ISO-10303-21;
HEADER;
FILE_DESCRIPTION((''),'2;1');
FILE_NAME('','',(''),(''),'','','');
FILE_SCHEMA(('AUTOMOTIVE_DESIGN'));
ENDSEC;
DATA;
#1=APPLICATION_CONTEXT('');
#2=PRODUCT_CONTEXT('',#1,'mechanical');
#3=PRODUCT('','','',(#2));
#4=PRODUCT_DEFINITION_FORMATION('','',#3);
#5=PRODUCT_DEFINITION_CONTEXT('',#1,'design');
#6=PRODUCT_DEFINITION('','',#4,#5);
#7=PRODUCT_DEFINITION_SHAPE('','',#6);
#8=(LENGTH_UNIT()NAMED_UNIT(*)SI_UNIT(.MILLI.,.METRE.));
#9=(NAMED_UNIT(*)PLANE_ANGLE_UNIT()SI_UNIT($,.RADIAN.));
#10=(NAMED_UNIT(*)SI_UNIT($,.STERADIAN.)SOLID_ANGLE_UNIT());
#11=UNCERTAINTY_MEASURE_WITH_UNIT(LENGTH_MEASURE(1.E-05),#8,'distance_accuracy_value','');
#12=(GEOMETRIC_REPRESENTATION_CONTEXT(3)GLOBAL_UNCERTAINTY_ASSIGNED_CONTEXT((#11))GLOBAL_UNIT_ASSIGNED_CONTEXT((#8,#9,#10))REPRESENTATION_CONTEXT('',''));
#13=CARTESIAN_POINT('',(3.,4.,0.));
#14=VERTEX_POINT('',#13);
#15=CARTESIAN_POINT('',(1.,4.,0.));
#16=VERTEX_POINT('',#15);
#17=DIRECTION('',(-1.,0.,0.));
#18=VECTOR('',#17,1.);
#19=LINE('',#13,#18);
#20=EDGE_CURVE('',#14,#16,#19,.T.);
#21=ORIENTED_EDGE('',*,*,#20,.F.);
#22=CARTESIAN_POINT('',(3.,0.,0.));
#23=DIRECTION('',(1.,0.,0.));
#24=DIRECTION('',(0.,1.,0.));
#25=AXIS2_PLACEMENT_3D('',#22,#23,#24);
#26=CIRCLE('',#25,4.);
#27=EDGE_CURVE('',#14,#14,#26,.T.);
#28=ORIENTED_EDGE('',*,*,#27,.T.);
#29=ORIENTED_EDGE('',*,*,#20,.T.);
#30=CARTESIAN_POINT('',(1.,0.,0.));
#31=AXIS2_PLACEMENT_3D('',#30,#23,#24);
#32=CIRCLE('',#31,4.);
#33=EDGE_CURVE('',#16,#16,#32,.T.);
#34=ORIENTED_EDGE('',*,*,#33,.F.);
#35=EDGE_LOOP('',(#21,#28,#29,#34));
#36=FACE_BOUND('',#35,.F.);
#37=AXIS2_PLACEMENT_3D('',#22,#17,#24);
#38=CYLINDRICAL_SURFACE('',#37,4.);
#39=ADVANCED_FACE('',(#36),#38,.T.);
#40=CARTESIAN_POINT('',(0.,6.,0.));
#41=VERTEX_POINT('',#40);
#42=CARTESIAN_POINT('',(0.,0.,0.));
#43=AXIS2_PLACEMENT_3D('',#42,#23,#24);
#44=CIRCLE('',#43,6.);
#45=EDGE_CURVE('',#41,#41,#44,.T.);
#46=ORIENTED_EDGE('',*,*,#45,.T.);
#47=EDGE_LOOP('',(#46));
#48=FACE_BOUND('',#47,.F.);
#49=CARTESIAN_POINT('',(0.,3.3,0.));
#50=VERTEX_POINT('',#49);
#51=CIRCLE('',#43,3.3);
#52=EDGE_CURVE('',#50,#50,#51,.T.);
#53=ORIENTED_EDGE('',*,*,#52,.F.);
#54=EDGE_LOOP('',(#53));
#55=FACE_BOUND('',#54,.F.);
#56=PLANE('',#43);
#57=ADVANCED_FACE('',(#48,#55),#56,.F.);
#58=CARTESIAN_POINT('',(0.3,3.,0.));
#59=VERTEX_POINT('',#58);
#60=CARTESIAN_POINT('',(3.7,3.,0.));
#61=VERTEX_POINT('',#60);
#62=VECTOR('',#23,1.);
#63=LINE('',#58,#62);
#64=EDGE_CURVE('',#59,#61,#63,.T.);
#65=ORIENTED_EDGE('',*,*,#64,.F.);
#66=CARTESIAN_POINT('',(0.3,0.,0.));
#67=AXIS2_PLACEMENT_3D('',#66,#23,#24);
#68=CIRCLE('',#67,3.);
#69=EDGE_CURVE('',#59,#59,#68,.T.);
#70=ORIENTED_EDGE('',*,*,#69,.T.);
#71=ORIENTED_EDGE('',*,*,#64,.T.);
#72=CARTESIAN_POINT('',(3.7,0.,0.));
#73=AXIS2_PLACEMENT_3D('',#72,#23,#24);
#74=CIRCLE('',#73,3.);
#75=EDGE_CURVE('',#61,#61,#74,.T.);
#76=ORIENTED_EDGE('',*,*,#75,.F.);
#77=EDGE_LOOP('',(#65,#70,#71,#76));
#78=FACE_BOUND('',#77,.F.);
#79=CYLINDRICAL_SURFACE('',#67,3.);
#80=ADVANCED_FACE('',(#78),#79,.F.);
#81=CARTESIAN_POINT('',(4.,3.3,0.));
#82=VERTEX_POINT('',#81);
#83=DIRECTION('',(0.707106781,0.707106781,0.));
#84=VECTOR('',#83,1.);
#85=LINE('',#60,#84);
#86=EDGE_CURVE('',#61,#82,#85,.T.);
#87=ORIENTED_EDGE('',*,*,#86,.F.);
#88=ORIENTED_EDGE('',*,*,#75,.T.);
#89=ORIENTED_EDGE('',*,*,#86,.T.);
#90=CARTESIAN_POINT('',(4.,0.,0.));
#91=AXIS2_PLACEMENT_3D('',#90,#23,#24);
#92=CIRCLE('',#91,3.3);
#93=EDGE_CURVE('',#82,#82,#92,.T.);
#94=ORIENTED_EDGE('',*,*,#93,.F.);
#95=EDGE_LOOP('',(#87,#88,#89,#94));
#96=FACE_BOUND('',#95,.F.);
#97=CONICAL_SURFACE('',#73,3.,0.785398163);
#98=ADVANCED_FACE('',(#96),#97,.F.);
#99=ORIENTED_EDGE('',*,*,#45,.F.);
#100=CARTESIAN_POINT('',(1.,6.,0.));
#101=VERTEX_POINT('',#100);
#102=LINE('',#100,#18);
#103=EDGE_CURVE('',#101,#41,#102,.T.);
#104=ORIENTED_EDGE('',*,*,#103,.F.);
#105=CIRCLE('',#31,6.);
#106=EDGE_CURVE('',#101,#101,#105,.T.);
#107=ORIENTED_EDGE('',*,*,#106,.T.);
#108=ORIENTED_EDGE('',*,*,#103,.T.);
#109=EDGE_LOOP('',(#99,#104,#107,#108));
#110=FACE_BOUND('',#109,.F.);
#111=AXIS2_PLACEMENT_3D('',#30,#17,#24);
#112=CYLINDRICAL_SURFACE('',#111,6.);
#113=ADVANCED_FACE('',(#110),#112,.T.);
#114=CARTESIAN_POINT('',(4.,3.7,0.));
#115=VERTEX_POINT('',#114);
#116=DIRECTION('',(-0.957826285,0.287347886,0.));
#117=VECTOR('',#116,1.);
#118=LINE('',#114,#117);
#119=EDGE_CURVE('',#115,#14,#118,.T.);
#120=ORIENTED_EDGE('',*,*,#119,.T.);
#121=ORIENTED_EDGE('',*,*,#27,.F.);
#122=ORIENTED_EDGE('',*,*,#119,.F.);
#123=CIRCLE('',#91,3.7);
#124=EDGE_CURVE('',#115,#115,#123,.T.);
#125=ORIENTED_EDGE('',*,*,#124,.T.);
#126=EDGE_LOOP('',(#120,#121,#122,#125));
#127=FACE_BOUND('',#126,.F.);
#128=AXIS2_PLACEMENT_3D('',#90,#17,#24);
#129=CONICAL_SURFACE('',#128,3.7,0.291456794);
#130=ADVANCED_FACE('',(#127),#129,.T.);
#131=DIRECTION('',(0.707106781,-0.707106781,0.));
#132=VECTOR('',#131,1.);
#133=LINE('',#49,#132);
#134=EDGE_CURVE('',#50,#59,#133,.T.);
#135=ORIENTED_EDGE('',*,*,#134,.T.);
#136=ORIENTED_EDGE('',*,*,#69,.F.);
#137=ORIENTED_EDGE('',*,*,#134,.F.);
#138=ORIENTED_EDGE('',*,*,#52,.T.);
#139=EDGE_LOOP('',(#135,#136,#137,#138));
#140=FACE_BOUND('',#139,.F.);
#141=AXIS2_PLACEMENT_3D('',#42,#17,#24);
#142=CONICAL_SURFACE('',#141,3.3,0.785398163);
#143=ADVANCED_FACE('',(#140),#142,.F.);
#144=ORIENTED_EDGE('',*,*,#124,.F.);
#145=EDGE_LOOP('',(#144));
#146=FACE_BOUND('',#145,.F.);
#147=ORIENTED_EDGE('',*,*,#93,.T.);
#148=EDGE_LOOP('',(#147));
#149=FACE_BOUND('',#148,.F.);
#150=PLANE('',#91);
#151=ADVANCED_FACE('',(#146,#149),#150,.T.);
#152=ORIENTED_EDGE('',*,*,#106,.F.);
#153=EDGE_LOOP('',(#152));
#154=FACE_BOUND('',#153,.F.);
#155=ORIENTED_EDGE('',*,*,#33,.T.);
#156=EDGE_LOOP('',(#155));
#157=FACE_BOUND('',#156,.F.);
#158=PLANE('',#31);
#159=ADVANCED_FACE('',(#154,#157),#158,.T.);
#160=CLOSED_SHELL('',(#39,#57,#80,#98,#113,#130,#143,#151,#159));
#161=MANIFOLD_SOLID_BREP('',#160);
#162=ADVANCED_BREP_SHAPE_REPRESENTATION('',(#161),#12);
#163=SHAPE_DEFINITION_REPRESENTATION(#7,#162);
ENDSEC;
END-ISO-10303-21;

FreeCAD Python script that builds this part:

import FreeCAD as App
import Part
import Sketcher

doc = App.newDocument("Part")
body = doc.addObject("PartDesign::Body", "Body")

sketch1 = body.newObject("Sketcher::SketchObject", "Sketch")
sketch1.AttachmentSupport = (doc.getObject("XY_Plane"), [""])
sketch1.MapMode = "FlatFace"
sketch1.addGeometry([
    Part.LineSegment(App.Vector(0, 6, 0), App.Vector(0, 3.3, 0)),
    Part.LineSegment(App.Vector(0, 3.3, 0), App.Vector(0.3, 3, 0)),
    Part.LineSegment(App.Vector(0.3, 3, 0), App.Vector(3.7, 3, 0)),
    Part.LineSegment(App.Vector(3.7, 3, 0), App.Vector(4, 3.3, 0)),
    Part.LineSegment(App.Vector(4, 3.3, 0), App.Vector(4, 3.7, 0)),
    Part.LineSegment(App.Vector(4, 3.7, 0), App.Vector(3, 4, 0)),
    Part.LineSegment(App.Vector(3, 4, 0), App.Vector(1, 4, 0)),
    Part.LineSegment(App.Vector(1, 4, 0), App.Vector(1, 6, 0)),
    Part.LineSegment(App.Vector(1, 6, 0), App.Vector(0, 6, 0)),
], False)
sketch1.addConstraint([
    Sketcher.Constraint("Coincident", 0, 2, 1, 1),
    Sketcher.Constraint("Coincident", 1, 2, 2, 1),
    Sketcher.Constraint("Coincident", 2, 2, 3, 1),
    Sketcher.Constraint("Coincident", 3, 2, 4, 1),
    Sketcher.Constraint("Coincident", 4, 2, 5, 1),
    Sketcher.Constraint("Coincident", 5, 2, 6, 1),
    Sketcher.Constraint("Coincident", 6, 2, 7, 1),
    Sketcher.Constraint("Coincident", 7, 2, 8, 1),
    Sketcher.Constraint("Coincident", 8, 2, 0, 1),
    Sketcher.Constraint("Vertical", 0),
    Sketcher.Constraint("Horizontal", 2),
    Sketcher.Constraint("Vertical", 4),
    Sketcher.Constraint("Horizontal", 6),
    Sketcher.Constraint("Vertical", 7),
    Sketcher.Constraint("Horizontal", 8),
    Sketcher.Constraint("PointOnObject", 0, 2, -2),
    Sketcher.Constraint("Perpendicular", 1, 3),
    Sketcher.Constraint("Horizontal", 0, 2, 3, 2),
    Sketcher.Constraint("Equal", 6, 7),
    Sketcher.Constraint("Equal", 1, 3),
    Sketcher.Constraint("DistanceX", 6, 2, 6, 1, 2.0),
    Sketcher.Constraint("DistanceX", 8, 2, 8, 1, 1.0),
    Sketcher.Constraint("DistanceX", 2, 1, 2, 2, 3.4),
    Sketcher.Constraint("DistanceY", 0, 2, 0, 1, 2.7),
    Sketcher.Constraint("DistanceY", 4, 1, 4, 2, 0.4),
    Sketcher.Constraint("DistanceY", -1, 1, 1, 2, 3.0),
    Sketcher.Constraint("DistanceX", -1, 1, 3, 2, 4.0),
])
revolution = body.newObject("PartDesign::Revolution", "Revolution")
revolution.Profile = sketch1
revolution.ReferenceAxis = (sketch1, ["H_Axis"])
revolution.Angle = 360

doc.recompute()
